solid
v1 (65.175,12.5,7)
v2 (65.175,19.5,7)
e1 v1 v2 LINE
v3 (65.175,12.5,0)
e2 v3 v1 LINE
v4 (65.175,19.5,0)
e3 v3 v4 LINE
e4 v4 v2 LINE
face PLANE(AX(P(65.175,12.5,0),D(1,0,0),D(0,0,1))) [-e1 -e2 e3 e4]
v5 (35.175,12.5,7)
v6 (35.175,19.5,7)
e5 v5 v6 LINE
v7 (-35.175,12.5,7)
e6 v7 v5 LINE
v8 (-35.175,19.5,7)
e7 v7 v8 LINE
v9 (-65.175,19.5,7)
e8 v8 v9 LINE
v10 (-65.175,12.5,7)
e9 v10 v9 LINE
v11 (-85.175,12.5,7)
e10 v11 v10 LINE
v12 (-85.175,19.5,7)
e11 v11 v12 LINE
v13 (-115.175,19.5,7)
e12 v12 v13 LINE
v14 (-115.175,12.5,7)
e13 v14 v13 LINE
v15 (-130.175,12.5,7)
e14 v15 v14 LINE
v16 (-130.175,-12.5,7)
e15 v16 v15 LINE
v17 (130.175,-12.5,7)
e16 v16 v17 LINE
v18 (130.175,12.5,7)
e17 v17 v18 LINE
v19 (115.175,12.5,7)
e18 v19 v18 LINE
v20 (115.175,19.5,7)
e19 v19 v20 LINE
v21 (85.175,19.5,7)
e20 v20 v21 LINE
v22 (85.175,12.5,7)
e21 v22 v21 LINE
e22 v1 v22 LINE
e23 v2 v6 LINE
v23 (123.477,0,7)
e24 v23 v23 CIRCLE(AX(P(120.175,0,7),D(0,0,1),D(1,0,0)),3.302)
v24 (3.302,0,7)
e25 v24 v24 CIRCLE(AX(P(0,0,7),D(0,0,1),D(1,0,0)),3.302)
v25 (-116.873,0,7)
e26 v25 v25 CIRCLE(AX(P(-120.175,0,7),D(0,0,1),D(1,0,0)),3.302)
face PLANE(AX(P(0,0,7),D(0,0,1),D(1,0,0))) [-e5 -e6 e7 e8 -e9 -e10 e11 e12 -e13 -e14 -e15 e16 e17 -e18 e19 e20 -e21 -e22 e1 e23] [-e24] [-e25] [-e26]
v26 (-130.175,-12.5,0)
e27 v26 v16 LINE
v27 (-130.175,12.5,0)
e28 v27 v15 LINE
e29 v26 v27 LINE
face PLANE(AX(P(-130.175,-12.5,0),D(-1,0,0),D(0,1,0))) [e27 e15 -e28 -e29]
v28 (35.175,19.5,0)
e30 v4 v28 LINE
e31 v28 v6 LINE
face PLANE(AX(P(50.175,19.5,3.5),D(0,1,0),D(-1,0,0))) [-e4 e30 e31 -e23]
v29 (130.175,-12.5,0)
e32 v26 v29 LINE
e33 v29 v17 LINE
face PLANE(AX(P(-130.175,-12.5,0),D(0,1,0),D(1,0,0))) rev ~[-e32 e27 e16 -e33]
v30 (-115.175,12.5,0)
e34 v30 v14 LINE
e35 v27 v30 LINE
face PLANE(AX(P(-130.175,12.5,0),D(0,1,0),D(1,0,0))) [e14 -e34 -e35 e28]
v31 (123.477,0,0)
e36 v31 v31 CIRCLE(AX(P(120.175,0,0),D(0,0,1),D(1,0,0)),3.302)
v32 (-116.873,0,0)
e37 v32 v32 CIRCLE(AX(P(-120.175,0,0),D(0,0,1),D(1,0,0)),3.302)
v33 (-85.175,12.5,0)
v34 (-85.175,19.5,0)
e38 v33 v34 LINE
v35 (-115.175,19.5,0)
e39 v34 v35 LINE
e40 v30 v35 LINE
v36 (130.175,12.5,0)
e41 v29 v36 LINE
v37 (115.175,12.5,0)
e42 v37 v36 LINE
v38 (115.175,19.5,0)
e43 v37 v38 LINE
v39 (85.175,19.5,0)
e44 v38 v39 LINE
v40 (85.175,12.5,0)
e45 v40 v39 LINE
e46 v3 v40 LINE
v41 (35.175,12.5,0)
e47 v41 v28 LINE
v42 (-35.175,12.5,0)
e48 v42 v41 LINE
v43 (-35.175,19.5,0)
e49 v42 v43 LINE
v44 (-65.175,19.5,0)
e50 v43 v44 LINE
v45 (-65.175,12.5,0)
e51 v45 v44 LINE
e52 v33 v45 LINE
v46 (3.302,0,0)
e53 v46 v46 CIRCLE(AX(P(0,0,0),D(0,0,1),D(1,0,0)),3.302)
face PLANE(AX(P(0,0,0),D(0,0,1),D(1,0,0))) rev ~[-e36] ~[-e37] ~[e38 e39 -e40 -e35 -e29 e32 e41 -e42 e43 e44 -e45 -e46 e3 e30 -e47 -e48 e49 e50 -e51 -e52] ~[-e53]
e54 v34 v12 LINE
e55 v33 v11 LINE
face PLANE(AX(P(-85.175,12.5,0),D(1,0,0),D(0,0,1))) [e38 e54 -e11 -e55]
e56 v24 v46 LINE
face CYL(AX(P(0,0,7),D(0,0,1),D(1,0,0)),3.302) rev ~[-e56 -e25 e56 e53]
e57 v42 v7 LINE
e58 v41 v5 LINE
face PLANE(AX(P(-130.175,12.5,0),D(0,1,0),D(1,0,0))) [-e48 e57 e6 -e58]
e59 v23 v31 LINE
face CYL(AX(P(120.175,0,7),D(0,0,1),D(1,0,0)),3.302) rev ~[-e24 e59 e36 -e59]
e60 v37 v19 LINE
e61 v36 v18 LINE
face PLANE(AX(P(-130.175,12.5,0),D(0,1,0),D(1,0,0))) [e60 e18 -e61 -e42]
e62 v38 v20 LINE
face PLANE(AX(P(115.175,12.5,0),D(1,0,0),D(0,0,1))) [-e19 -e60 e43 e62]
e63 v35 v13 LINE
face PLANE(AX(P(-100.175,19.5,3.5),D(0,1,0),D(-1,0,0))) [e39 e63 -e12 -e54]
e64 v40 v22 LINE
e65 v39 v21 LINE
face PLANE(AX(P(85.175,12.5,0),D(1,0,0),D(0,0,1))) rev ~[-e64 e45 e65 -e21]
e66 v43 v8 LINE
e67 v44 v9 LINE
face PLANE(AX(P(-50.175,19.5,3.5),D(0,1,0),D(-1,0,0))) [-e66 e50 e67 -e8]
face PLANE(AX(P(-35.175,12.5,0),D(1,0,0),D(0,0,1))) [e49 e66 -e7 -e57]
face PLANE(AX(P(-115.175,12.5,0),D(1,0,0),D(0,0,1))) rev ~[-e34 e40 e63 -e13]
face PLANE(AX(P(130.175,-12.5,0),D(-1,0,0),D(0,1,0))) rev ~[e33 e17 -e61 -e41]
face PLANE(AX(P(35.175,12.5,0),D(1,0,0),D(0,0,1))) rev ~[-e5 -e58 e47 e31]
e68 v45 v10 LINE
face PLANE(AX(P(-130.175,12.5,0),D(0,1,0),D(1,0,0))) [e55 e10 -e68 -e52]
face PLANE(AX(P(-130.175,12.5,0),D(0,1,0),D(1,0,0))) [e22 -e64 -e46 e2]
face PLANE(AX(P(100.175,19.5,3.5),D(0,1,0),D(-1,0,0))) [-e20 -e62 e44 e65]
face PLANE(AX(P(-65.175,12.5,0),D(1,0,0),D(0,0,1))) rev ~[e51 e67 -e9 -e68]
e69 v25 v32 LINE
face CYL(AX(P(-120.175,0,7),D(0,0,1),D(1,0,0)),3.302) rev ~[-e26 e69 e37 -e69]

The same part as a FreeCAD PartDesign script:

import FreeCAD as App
import Part
import Sketcher


def add_polygon(sketch, points):
    """Adds a closed chain of lines whose ends are joined by coincident constraints."""
    first, n = sketch.GeometryCount, len(points)
    for a, b in zip(points, points[1:] + points[:1]):
        sketch.addGeometry(Part.LineSegment(App.Vector(*a, 0), App.Vector(*b, 0)), False)
    for i in range(n):
        sketch.addConstraint(Sketcher.Constraint("Coincident", first + i, 2, first + (i + 1) % n, 1))

doc = App.newDocument("Part")
body = doc.addObject("PartDesign::Body", "Body")

sketch1 = doc.addObject("Sketcher::SketchObject", "Sketch")
body.addObject(sketch1)
sketch1.AttachmentSupport = (doc.XY_Plane, [""])
sketch1.MapMode = "FlatFace"
add_polygon(sketch1, [(-130.175, 12.5), (-130.175, -12.5), (130.175, -12.5), (130.175, 12.5)])
sketch1.addConstraint([
    Sketcher.Constraint("Vertical", 0),
    Sketcher.Constraint("Horizontal", 1),
    Sketcher.Constraint("Vertical", 2),
    Sketcher.Constraint("Horizontal", 3),
    Sketcher.Constraint("Symmetric", 0, 2, 2, 2, -1, 1),
    Sketcher.Constraint("DistanceY", 0, 2, 0, 1, 25.0),
    Sketcher.Constraint("DistanceX", 1, 1, 1, 2, 260.35),
])
pad1 = doc.addObject("PartDesign::Pad", "Pad")
body.addObject(pad1)
pad1.Profile = sketch1
pad1.Length = 7

sketch2 = doc.addObject("Sketcher::SketchObject", "Sketch001")
body.addObject(sketch2)
sketch2.AttachmentSupport = (doc.XY_Plane, [""])
sketch2.MapMode = "FlatFace"
sketch2.AttachmentOffset = App.Placement(App.Vector(0, 0, 7), App.Rotation())
sketch2.addGeometry([
    Part.Circle(App.Vector(-120.175, 0, 0), App.Vector(0, 0, 1), 3.302),
    Part.Circle(App.Vector(0, 0, 0), App.Vector(0, 0, 1), 3.302),
    Part.Circle(App.Vector(120.175, 0, 0), App.Vector(0, 0, 1), 3.302),
], False)
sketch2.addConstraint([
    Sketcher.Constraint("Coincident", 1, 3, -1, 1),
    Sketcher.Constraint("Equal", 0, 1),
    Sketcher.Constraint("Equal", 1, 2),
    Sketcher.Constraint("Symmetric", 0, 3, 2, 3, -1, 1),
    Sketcher.Constraint("PointOnObject", 0, 3, -1),
    Sketcher.Constraint("Diameter", 0, 6.604),
    Sketcher.Constraint("DistanceX", 0, 3, 2, 3, 240.35),
])
pocket1 = doc.addObject("PartDesign::Pocket", "Pocket")
body.addObject(pocket1)
pocket1.Profile = sketch2
pocket1.Type = "ThroughAll"

sketch3 = doc.addObject("Sketcher::SketchObject", "Sketch002")
body.addObject(sketch3)
sketch3.AttachmentSupport = (doc.XZ_Plane, [""])
sketch3.MapMode = "FlatFace"
sketch3.AttachmentOffset = App.Placement(App.Vector(0, 0, -12.5), App.Rotation())
add_polygon(sketch3, [(-85.175, 7), (-85.175, 0), (-115.175, 0), (-115.175, 7)])
add_polygon(sketch3, [(-35.175, 7), (-35.175, 0), (-65.175, 0), (-65.175, 7)])
add_polygon(sketch3, [(65.175, 7), (65.175, 0), (35.175, 0), (35.175, 7)])
add_polygon(sketch3, [(115.175, 7), (115.175, 0), (85.175, 0), (85.175, 7)])
sketch3.addConstraint([
    Sketcher.Constraint("Vertical", 0),
    Sketcher.Constraint("Horizontal", 1),
    Sketcher.Constraint("Vertical", 2),
    Sketcher.Constraint("Horizontal", 3),
    Sketcher.Constraint("Vertical", 4),
    Sketcher.Constraint("Horizontal", 5),
    Sketcher.Constraint("Vertical", 6),
    Sketcher.Constraint("Horizontal", 7),
    Sketcher.Constraint("Vertical", 8),
    Sketcher.Constraint("Horizontal", 9),
    Sketcher.Constraint("Vertical", 10),
    Sketcher.Constraint("Horizontal", 11),
    Sketcher.Constraint("Vertical", 12),
    Sketcher.Constraint("Horizontal", 13),
    Sketcher.Constraint("Vertical", 14),
    Sketcher.Constraint("Horizontal", 15),
    Sketcher.Constraint("Symmetric", 5, 2, 8, 2, -1, 1),
    Sketcher.Constraint("Symmetric", 1, 2, 12, 2, -1, 1),
    Sketcher.Constraint("Symmetric", 4, 2, 9, 2, -2),
    Sketcher.Constraint("Symmetric", 0, 2, 13, 2, -2),
    Sketcher.Constraint("Horizontal", 3, 2, 6, 2),
    Sketcher.Constraint("Horizontal", 7, 2, 10, 2),
    Sketcher.Constraint("Horizontal", 11, 2, 14, 2),
    Sketcher.Constraint("Equal", 3, 5),
    Sketcher.Constraint("DistanceX", 1, 2, 1, 1, 30.0),
    Sketcher.Constraint("DistanceY", 0, 2, 0, 1, 7.0),
    Sketcher.Constraint("DistanceX", 0, 2, 4, 2, 50.0),
    Sketcher.Constraint("DistanceX", 4, 2, 8, 2, 100.35),
])
pad2 = doc.addObject("PartDesign::Pad", "Pad001")
body.addObject(pad2)
pad2.Profile = sketch3
pad2.Length = 7
pad2.Reversed = True

doc.recompute()
